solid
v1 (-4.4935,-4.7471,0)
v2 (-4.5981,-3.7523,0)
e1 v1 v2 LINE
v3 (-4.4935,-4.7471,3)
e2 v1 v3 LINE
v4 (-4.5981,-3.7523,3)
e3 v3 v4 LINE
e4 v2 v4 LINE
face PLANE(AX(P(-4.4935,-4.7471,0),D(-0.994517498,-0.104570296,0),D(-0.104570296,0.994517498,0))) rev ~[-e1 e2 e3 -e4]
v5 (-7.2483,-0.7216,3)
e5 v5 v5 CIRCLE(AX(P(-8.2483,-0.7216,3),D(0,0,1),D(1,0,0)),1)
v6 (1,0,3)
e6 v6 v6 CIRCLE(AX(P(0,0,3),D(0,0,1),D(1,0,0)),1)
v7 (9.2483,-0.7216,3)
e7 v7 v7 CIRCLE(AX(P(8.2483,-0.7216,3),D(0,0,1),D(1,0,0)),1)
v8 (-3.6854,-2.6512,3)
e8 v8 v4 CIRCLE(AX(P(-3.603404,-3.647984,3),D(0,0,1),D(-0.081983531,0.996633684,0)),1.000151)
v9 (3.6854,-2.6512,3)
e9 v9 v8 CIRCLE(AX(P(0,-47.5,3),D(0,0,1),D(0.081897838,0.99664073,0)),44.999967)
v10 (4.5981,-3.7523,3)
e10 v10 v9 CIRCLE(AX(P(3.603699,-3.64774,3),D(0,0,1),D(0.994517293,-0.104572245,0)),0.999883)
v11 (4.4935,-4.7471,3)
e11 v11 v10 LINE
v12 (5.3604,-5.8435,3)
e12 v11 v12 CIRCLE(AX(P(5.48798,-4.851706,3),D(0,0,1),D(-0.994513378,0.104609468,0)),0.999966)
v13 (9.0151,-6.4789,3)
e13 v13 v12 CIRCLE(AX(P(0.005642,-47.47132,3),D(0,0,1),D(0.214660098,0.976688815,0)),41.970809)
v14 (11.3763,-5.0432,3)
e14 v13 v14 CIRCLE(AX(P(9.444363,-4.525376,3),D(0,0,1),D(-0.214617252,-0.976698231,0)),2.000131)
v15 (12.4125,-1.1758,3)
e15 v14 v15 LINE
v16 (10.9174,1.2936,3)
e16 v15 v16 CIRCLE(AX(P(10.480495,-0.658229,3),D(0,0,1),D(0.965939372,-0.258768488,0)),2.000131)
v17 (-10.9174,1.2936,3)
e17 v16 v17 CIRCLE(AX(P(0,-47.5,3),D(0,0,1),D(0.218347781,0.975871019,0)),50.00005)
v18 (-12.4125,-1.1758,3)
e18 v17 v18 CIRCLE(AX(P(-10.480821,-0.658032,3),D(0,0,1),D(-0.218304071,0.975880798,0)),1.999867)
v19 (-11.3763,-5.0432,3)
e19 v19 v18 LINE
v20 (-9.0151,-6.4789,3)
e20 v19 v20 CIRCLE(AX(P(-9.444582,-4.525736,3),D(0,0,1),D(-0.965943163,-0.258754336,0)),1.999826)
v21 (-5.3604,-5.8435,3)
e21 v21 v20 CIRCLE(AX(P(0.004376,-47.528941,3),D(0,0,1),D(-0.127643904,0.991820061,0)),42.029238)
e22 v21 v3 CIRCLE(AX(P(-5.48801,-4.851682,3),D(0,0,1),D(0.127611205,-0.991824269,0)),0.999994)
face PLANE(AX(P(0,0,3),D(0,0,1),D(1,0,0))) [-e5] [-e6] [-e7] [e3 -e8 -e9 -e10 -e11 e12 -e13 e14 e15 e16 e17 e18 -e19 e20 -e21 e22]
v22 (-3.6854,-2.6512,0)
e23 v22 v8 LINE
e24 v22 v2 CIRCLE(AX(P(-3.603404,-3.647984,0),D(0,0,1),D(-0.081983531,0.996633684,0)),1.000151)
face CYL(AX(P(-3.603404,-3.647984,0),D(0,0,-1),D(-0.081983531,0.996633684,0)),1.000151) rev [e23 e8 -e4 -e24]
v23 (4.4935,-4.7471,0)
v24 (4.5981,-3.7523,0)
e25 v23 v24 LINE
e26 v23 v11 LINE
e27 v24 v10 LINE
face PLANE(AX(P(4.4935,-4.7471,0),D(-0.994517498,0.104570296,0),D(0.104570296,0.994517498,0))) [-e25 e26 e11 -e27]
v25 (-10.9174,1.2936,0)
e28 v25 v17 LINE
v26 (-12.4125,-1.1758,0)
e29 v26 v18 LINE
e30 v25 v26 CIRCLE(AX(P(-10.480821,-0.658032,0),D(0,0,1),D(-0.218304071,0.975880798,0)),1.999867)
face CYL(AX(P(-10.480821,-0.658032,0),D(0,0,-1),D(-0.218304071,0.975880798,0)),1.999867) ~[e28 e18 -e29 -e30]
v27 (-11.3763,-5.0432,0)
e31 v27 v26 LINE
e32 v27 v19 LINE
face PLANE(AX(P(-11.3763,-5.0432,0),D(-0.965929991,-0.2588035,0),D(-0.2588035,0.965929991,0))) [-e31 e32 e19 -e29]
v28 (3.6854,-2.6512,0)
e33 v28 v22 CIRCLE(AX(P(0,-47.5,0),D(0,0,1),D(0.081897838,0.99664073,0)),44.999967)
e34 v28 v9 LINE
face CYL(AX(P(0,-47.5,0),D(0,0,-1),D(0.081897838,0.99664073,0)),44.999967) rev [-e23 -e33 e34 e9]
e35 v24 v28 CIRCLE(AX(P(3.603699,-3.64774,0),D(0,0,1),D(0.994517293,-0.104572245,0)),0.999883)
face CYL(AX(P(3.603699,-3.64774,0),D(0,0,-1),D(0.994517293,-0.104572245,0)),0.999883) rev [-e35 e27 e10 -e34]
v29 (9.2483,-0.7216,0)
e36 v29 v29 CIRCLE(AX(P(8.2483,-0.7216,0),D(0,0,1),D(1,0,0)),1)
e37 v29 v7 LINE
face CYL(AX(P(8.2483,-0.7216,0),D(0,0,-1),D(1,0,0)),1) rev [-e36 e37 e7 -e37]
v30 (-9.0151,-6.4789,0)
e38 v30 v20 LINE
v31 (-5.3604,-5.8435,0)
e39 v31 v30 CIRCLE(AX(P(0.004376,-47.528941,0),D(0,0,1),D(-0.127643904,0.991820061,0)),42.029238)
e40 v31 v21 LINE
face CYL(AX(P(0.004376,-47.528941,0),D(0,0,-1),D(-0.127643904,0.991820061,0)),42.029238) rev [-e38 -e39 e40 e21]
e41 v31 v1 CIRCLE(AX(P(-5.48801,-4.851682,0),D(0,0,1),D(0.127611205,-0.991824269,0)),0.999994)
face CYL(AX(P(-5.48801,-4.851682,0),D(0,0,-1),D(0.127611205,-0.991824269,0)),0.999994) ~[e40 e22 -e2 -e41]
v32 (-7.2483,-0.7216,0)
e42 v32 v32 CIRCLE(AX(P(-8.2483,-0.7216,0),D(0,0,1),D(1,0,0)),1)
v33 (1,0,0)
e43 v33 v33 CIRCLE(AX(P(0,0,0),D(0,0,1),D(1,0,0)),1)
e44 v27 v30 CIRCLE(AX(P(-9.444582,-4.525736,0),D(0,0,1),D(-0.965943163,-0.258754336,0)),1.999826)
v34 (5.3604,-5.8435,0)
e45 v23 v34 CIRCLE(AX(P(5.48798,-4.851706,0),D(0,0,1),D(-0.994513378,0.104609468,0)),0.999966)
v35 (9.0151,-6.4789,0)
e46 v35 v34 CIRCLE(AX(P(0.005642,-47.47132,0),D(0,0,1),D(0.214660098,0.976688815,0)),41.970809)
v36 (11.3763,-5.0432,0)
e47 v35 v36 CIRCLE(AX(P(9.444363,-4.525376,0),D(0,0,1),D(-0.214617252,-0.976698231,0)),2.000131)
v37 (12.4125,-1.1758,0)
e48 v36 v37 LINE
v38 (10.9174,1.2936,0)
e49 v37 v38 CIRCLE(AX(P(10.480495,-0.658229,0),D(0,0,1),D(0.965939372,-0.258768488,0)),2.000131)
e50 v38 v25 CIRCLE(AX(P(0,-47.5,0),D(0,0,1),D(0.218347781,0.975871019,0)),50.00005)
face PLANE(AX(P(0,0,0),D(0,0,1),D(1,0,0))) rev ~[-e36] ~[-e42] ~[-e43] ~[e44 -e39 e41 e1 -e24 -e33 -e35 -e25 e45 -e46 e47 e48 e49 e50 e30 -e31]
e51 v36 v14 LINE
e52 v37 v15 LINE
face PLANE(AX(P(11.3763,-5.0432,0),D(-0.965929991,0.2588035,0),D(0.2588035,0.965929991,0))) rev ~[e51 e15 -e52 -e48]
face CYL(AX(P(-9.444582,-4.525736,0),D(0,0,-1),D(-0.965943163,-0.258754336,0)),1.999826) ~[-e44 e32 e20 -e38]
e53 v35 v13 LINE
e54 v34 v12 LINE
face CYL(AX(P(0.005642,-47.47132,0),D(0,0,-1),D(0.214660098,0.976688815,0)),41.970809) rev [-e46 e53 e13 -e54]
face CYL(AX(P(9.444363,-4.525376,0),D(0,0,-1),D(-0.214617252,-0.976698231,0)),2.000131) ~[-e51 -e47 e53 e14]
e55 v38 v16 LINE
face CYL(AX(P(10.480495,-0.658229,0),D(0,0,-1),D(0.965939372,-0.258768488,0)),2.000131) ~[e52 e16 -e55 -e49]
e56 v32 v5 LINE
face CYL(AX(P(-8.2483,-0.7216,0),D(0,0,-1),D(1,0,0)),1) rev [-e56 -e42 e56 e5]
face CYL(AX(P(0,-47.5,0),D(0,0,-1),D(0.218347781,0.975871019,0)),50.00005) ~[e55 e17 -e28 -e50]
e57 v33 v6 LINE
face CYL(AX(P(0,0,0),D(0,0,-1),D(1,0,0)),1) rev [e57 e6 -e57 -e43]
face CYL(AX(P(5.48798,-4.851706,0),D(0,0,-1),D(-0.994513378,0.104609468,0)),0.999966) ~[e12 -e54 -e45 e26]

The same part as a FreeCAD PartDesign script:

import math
import FreeCAD as App
import Part
import Sketcher

V = App.Vector
Q = App.Units.Quantity

doc = App.newDocument("Part")
body = doc.addObject("PartDesign::Body", "Body")

# Sketch on XY plane
sketch1 = body.newObject("Sketcher::SketchObject", "Sketch")
sketch1.AttachmentSupport = (doc.getObject("XY_Plane"), [""])
sketch1.MapMode = "FlatFace"
sketch1.addGeometry([
    Part.ArcOfCircle(Part.Circle(V(10.5, -0.7, 0), V(0, 0, 1), 2), math.radians(-15), math.radians(77)),  # 0
    Part.ArcOfCircle(Part.Circle(V(0, -47.5, 0), V(0, 0, 1), 50), math.radians(77), math.radians(103)),  # 1
    Part.ArcOfCircle(Part.Circle(V(-10.5, -0.7, 0), V(0, 0, 1), 2), math.radians(103), math.radians(195)),  # 2
    Part.LineSegment(V(-12.4, -1.2, 0), V(-11.4, -5, 0)),  # 3
    Part.ArcOfCircle(Part.Circle(V(-9.4, -4.5, 0), V(0, 0, 1), 2), math.radians(-165), math.radians(-78)),  # 4
    Part.ArcOfCircle(Part.Circle(V(0, -47.5, 0), V(0, 0, 1), 42), math.radians(97.33), math.radians(102.39)),  # 5
    Part.ArcOfCircle(Part.Circle(V(-5.5, -4.9, 0), V(0, 0, 1), 1), math.radians(-83), math.radians(6)),  # 6
    Part.LineSegment(V(-4.5, -4.7, 0), V(-4.6, -3.8, 0)),  # 7
    Part.ArcOfCircle(Part.Circle(V(-3.6, -3.6, 0), V(0, 0, 1), 1), math.radians(95), math.radians(186)),  # 8
    Part.ArcOfCircle(Part.Circle(V(0, -47.5, 0), V(0, 0, 1), 45), math.radians(85.3), math.radians(94.7)),  # 9
    Part.ArcOfCircle(Part.Circle(V(3.6, -3.6, 0), V(0, 0, 1), 1), math.radians(-6), math.radians(85)),  # 10
    Part.LineSegment(V(4.6, -3.8, 0), V(4.5, -4.7, 0)),  # 11
    Part.ArcOfCircle(Part.Circle(V(5.5, -4.9, 0), V(0, 0, 1), 1), math.radians(174), math.radians(263)),  # 12
    Part.ArcOfCircle(Part.Circle(V(0, -47.5, 0), V(0, 0, 1), 42), math.radians(77.6), math.radians(82.67)),  # 13
    Part.ArcOfCircle(Part.Circle(V(9.4, -4.5, 0), V(0, 0, 1), 2), math.radians(-102), math.radians(-15)),  # 14
    Part.LineSegment(V(11.4, -5, 0), V(12.4, -1.2, 0)),  # 15
    Part.Circle(V(-8.2, -0.7, 0), V(0, 0, 1), 1),  # 16
    Part.Circle(V(0, 0, 0), V(0, 0, 1), 1),  # 17
    Part.Circle(V(8.2, -0.7, 0), V(0, 0, 1), 1),  # 18
], False)
sketch1.addConstraint([
    Sketcher.Constraint("Tangent", 0, 2, 1, 1),
    Sketcher.Constraint("Tangent", 1, 2, 2, 1),
    Sketcher.Constraint("Tangent", 2, 2, 3, 1),
    Sketcher.Constraint("Tangent", 3, 2, 4, 1),
    Sketcher.Constraint("Tangent", 4, 2, 5, 2),
    Sketcher.Constraint("Tangent", 5, 1, 6, 1),
    Sketcher.Constraint("Tangent", 6, 2, 7, 1),
    Sketcher.Constraint("Tangent", 7, 2, 8, 2),
    Sketcher.Constraint("Tangent", 8, 1, 9, 2),
    Sketcher.Constraint("Tangent", 9, 1, 10, 2),
    Sketcher.Constraint("Tangent", 10, 1, 11, 1),
    Sketcher.Constraint("Tangent", 11, 2, 12, 1),
    Sketcher.Constraint("Tangent", 12, 2, 13, 2),
    Sketcher.Constraint("Tangent", 13, 1, 14, 1),
    Sketcher.Constraint("Tangent", 14, 2, 15, 1),
    Sketcher.Constraint("Tangent", 15, 2, 0, 1),
    Sketcher.Constraint("Coincident", 17, 3, -1, 1),
    Sketcher.Constraint("Coincident", 9, 3, 1, 3),
    Sketcher.Constraint("Equal", 0, 2),
    Sketcher.Constraint("Equal", 2, 4),
    Sketcher.Constraint("Equal", 6, 8),
    Sketcher.Constraint("Equal", 8, 10),
    Sketcher.Constraint("Equal", 10, 12),
    Sketcher.Constraint("Equal", 4, 14),
    Sketcher.Constraint("Equal", 12, 16),
    Sketcher.Constraint("Equal", 16, 17),
    Sketcher.Constraint("Equal", 17, 18),
    Sketcher.Constraint("Symmetric", 0, 3, 2, 3, -2),
    Sketcher.Constraint("Symmetric", 6, 3, 12, 3, -2),
    Sketcher.Constraint("Symmetric", 4, 3, 14, 3, -2),
    Sketcher.Constraint("Symmetric", 16, 3, 18, 3, -2),
    Sketcher.Constraint("Horizontal", 8, 3, 10, 3),
    Sketcher.Constraint("Diameter", 16, Q("2 mm")),
    Sketcher.Constraint("Radius", 0, Q("2 mm")),
    Sketcher.Constraint("Radius", 1, Q("50 mm")),
    Sketcher.Constraint("Radius", 9, Q("45 mm")),
    Sketcher.Constraint("DistanceY", 1, 3, -1, 1, Q("47.5 mm")),
    Sketcher.Constraint("Angle", 3, Q("-75.001 deg")),
    Sketcher.Constraint("Distance", 7, Q("1.0003 mm")),
    Sketcher.Constraint("Radius", 5, Q("42.0292 mm")),
    Sketcher.Constraint("Radius", 13, Q("41.9708 mm")),
    Sketcher.Constraint("DistanceY", 6, 3, 16, 3, Q("4.13 mm")),
    Sketcher.Constraint("DistanceX", 6, 2, 8, 3, Q("0.89 mm")),
    Sketcher.Constraint("DistanceY", 5, 3, -1, 1, Q("47.529 mm")),
    Sketcher.Constraint("DistanceX", 6, 3, -1, 1, Q("5.488 mm")),
    Sketcher.Constraint("DistanceX", 4, 2, -1, 1, Q("9.015 mm")),
    Sketcher.Constraint("DistanceX", 4, 3, 16, 3, Q("1.196 mm")),
])
pad1 = body.newObject("PartDesign::Pad", "Pad")
pad1.Profile = sketch1
pad1.Length = 3

doc.recompute()
